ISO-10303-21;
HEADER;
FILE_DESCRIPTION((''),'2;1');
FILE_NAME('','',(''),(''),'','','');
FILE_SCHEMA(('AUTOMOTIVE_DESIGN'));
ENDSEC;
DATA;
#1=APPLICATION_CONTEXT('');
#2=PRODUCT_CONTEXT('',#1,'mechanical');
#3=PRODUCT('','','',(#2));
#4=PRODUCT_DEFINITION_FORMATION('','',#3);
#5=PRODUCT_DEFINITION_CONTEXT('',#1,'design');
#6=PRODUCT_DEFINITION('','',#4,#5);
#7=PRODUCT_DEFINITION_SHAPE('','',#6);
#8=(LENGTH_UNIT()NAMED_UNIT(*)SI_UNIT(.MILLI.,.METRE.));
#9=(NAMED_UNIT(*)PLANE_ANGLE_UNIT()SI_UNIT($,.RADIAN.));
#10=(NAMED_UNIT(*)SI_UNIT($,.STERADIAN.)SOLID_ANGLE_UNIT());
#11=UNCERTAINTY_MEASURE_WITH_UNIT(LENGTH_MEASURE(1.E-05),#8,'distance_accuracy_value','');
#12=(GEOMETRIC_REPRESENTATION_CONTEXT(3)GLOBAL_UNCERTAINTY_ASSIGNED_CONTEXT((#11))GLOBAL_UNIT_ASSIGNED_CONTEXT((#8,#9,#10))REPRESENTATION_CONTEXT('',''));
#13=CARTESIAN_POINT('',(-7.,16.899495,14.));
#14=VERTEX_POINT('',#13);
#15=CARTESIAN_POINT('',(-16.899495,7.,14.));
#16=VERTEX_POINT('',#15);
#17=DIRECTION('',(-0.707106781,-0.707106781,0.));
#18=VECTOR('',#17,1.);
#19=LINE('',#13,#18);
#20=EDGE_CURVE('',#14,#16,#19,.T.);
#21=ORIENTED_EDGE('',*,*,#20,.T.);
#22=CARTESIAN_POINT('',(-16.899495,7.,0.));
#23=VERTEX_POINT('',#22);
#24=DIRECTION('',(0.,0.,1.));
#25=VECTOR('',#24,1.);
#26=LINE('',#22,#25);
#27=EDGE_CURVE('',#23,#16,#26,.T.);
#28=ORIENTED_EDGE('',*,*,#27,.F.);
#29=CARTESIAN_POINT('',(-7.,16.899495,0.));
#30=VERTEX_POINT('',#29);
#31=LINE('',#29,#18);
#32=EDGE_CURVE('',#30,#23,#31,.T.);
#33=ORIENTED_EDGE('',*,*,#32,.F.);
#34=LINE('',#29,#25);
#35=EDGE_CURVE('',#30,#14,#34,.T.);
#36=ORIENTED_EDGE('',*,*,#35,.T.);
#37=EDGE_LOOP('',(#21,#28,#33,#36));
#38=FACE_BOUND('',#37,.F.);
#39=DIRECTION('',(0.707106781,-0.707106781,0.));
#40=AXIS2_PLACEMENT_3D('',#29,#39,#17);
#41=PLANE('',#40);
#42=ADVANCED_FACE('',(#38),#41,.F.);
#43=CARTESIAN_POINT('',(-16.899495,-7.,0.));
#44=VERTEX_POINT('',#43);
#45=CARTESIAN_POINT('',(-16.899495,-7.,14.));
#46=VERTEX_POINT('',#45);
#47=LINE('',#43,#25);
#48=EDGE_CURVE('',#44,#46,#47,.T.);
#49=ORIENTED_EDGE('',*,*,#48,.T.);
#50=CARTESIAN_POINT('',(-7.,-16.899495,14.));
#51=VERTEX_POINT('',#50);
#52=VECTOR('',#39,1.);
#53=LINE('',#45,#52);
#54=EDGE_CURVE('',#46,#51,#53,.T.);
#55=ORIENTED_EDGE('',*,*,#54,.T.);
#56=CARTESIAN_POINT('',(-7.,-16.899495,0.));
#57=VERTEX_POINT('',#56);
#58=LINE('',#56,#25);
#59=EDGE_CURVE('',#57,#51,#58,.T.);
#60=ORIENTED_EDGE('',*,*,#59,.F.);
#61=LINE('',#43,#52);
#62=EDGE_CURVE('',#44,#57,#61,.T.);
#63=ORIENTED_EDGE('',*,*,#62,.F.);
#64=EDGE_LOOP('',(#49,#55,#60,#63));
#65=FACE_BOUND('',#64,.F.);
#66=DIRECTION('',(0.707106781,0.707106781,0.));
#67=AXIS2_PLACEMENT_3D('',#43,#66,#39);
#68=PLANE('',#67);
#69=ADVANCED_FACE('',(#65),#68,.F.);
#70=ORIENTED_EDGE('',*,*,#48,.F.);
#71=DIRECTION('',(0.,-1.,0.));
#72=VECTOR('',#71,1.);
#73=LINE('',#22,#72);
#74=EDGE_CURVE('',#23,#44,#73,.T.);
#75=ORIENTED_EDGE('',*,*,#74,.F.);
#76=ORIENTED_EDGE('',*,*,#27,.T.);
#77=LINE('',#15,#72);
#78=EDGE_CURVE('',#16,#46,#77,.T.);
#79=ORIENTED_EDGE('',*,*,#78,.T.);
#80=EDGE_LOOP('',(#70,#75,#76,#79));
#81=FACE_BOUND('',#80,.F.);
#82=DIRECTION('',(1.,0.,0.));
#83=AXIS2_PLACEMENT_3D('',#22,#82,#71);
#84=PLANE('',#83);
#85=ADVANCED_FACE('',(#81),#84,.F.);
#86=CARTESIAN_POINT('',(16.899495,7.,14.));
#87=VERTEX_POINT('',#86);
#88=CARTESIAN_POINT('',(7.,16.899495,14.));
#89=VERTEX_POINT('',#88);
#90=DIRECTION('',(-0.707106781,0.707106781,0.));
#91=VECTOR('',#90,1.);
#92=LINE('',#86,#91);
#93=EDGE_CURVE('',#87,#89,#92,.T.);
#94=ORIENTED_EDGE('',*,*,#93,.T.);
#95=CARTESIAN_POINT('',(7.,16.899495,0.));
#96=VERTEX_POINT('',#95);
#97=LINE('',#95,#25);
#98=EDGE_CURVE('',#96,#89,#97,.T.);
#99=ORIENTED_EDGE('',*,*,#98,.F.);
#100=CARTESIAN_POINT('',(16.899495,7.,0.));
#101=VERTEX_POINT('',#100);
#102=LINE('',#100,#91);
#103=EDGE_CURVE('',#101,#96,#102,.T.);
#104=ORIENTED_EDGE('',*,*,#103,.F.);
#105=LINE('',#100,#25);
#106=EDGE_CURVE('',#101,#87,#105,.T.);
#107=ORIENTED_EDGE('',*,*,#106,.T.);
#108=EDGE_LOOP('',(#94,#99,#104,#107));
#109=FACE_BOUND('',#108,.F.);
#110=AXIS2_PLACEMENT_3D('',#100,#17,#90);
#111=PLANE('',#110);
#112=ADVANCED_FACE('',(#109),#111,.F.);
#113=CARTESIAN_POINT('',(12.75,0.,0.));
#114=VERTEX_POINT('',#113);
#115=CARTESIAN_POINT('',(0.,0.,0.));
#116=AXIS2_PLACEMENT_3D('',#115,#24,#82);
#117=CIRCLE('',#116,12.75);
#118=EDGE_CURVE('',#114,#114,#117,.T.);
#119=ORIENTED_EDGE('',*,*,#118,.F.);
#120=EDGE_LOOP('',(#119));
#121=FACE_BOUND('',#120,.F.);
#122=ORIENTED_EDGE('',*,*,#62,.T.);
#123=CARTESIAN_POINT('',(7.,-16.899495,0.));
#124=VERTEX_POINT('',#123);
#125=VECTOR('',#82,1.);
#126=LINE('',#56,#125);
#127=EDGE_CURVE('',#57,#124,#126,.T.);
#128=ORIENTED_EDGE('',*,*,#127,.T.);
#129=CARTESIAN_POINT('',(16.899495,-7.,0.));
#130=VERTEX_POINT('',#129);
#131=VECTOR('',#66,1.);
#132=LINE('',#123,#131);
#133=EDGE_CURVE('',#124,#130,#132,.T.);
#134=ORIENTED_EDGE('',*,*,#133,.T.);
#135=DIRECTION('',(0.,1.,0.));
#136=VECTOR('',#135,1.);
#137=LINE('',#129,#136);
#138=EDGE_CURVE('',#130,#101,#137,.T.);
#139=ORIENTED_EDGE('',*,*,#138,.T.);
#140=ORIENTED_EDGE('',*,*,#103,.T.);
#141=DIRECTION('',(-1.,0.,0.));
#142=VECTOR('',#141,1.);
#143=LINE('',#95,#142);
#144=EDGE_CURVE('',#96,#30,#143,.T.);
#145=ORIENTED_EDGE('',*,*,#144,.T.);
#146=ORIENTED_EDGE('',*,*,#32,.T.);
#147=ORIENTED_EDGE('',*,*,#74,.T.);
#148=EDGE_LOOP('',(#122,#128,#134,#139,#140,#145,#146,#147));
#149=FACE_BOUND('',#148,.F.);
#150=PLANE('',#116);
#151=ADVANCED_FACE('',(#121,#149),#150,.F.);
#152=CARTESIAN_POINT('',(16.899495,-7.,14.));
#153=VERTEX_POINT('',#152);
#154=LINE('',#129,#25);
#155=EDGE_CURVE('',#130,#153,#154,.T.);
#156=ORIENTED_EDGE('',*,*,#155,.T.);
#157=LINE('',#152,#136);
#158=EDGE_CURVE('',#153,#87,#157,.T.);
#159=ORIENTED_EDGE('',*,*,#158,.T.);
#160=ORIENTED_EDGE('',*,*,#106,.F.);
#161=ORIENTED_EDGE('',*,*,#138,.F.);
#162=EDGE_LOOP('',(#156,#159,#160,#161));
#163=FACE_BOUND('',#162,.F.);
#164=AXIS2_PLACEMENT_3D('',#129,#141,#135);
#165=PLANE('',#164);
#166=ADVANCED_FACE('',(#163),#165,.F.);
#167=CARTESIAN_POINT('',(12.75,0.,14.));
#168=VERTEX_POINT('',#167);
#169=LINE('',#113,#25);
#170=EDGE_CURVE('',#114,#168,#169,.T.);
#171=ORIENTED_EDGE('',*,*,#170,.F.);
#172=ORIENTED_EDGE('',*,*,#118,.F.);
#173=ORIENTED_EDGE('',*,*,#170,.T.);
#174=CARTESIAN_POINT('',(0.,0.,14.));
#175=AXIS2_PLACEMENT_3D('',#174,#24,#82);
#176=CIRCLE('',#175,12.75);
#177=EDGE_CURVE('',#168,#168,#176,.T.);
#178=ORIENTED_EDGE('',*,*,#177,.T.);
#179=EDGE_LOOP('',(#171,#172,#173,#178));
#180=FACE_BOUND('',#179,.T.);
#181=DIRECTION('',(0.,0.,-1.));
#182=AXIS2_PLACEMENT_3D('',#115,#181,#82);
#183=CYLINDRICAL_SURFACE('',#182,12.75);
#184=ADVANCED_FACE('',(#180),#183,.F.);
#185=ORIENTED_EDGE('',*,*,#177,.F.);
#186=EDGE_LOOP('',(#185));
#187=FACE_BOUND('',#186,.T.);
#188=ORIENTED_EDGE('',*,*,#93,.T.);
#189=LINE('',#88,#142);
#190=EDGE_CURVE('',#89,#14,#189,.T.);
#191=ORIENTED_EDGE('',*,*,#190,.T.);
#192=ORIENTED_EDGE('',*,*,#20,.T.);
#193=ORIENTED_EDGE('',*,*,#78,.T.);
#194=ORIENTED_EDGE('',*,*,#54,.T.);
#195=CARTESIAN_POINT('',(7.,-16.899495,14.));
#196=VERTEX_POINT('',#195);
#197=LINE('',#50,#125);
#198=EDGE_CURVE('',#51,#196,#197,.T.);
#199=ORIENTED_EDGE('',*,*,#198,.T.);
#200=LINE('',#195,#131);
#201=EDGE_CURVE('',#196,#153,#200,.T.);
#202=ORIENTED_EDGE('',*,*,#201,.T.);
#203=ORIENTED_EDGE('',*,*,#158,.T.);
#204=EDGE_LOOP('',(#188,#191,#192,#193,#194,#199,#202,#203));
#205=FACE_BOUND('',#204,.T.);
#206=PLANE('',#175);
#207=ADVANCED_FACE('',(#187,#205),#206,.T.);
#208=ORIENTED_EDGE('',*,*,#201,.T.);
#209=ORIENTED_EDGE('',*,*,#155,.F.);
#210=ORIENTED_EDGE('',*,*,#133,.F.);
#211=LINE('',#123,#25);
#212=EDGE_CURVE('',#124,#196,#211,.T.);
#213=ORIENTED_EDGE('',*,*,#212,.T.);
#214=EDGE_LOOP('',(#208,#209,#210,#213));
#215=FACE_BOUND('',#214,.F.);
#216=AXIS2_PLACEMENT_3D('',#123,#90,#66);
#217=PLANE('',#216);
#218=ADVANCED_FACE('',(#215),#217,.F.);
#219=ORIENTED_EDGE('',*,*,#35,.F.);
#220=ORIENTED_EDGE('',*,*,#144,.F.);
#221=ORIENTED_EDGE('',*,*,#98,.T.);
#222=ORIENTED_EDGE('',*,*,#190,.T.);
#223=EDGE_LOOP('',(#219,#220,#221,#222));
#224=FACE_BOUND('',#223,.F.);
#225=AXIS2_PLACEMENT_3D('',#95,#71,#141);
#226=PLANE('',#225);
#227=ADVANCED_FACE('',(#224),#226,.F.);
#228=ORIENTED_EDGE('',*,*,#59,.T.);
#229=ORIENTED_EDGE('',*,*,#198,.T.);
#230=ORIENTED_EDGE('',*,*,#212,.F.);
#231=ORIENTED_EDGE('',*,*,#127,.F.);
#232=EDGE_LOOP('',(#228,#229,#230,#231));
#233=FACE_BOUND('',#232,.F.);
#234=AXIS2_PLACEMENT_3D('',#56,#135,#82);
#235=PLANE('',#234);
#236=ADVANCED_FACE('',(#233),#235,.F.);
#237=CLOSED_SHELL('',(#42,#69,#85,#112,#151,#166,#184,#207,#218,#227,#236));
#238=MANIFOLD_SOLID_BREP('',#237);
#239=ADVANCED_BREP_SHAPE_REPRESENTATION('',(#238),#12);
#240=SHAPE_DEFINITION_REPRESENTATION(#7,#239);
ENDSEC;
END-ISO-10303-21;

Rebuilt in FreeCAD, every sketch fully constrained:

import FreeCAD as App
import Part
import Sketcher
Q = App.Units.Quantity

doc = App.newDocument("Part")
params = doc.addObject("Spreadsheet::Sheet", "Params")
for row, (alias, value) in enumerate([
    ("sketch1_diameter", "25.5 mm"),
    ("sketch1_width", "14 mm"),
    ("sketch1_length", "14 mm"),
    ("pad1_length", "14 mm"),
], start=1):
    params.set(f"A{row}", alias)
    params.set(f"B{row}", "=" + value)
    params.setAlias(f"B{row}", alias)

body = doc.addObject("PartDesign::Body", "Body")

# Sketch on XY plane
sketch1 = body.newObject("Sketcher::SketchObject", "Sketch")
sketch1.AttachmentSupport = (doc.getObject("XY_Plane"), [""])
sketch1.MapMode = "FlatFace"
sketch1.addGeometry(Part.LineSegment(App.Vector(-7, 17, 0), App.Vector(-17, 7, 0)), False)
sketch1.addGeometry(Part.LineSegment(App.Vector(-17, 7, 0), App.Vector(-17, -7, 0)), False)
sketch1.addGeometry(Part.LineSegment(App.Vector(-17, -7, 0), App.Vector(-7, -17, 0)), False)
sketch1.addGeometry(Part.LineSegment(App.Vector(-7, -17, 0), App.Vector(7, -17, 0)), False)
sketch1.addGeometry(Part.LineSegment(App.Vector(7, -17, 0), App.Vector(17, -7, 0)), False)
sketch1.addGeometry(Part.LineSegment(App.Vector(17, -7, 0), App.Vector(17, 7, 0)), False)
sketch1.addGeometry(Part.LineSegment(App.Vector(17, 7, 0), App.Vector(7, 17, 0)), False)
sketch1.addGeometry(Part.LineSegment(App.Vector(7, 17, 0), App.Vector(-7, 17, 0)), False)
sketch1.addGeometry(Part.Circle(App.Vector(0, 0, 0), App.Vector(0, 0, 1), 13), False)
sketch1.addConstraint(Sketcher.Constraint("Coincident", 0, 2, 1, 1))
sketch1.addConstraint(Sketcher.Constraint("Coincident", 1, 2, 2, 1))
sketch1.addConstraint(Sketcher.Constraint("Coincident", 2, 2, 3, 1))
sketch1.addConstraint(Sketcher.Constraint("Coincident", 3, 2, 4, 1))
sketch1.addConstraint(Sketcher.Constraint("Coincident", 4, 2, 5, 1))
sketch1.addConstraint(Sketcher.Constraint("Coincident", 5, 2, 6, 1))
sketch1.addConstraint(Sketcher.Constraint("Coincident", 6, 2, 7, 1))
sketch1.addConstraint(Sketcher.Constraint("Coincident", 7, 2, 0, 1))
sketch1.addConstraint(Sketcher.Constraint("Vertical", 1))
sketch1.addConstraint(Sketcher.Constraint("Horizontal", 3))
sketch1.addConstraint(Sketcher.Constraint("Vertical", 5))
sketch1.addConstraint(Sketcher.Constraint("Horizontal", 7))
sketch1.addConstraint(Sketcher.Constraint("Coincident", 8, 3, -1, 1))
sketch1.addConstraint(Sketcher.Constraint("Symmetric", 0, 2, 4, 2, -1, 1))
sketch1.addConstraint(Sketcher.Constraint("Symmetric", 2, 2, 6, 2, -1, 1))
sketch1.addConstraint(Sketcher.Constraint("Perpendicular", 0, 2))
sketch1.addConstraint(Sketcher.Constraint("Perpendicular", 2, 4))
sketch1.addConstraint(Sketcher.Constraint("Perpendicular", 4, 6))
sketch1.addConstraint(Sketcher.Constraint("Horizontal", 1, 2, 4, 2))
sketch1.addConstraint(Sketcher.Constraint("Vertical", 3, 2, 6, 2))
sketch1.addConstraint(Sketcher.Constraint("Equal", 7, 1))
sketch1.addConstraint(Sketcher.Constraint("Diameter", 8, Q("25.5 mm")))
sketch1.addConstraint(Sketcher.Constraint("DistanceX", 3, 1, 3, 2, Q("14 mm")))
sketch1.addConstraint(Sketcher.Constraint("Distance", 0, Q("14 mm")))
sketch1.setExpression("Constraints[21]", "Params.sketch1_diameter")
sketch1.setExpression("Constraints[22]", "Params.sketch1_width")
sketch1.setExpression("Constraints[23]", "Params.sketch1_length")
pad1 = body.newObject("PartDesign::Pad", "Pad")
pad1.Profile = sketch1
pad1.setExpression("Length", "Params.pad1_length")

doc.recompute()
